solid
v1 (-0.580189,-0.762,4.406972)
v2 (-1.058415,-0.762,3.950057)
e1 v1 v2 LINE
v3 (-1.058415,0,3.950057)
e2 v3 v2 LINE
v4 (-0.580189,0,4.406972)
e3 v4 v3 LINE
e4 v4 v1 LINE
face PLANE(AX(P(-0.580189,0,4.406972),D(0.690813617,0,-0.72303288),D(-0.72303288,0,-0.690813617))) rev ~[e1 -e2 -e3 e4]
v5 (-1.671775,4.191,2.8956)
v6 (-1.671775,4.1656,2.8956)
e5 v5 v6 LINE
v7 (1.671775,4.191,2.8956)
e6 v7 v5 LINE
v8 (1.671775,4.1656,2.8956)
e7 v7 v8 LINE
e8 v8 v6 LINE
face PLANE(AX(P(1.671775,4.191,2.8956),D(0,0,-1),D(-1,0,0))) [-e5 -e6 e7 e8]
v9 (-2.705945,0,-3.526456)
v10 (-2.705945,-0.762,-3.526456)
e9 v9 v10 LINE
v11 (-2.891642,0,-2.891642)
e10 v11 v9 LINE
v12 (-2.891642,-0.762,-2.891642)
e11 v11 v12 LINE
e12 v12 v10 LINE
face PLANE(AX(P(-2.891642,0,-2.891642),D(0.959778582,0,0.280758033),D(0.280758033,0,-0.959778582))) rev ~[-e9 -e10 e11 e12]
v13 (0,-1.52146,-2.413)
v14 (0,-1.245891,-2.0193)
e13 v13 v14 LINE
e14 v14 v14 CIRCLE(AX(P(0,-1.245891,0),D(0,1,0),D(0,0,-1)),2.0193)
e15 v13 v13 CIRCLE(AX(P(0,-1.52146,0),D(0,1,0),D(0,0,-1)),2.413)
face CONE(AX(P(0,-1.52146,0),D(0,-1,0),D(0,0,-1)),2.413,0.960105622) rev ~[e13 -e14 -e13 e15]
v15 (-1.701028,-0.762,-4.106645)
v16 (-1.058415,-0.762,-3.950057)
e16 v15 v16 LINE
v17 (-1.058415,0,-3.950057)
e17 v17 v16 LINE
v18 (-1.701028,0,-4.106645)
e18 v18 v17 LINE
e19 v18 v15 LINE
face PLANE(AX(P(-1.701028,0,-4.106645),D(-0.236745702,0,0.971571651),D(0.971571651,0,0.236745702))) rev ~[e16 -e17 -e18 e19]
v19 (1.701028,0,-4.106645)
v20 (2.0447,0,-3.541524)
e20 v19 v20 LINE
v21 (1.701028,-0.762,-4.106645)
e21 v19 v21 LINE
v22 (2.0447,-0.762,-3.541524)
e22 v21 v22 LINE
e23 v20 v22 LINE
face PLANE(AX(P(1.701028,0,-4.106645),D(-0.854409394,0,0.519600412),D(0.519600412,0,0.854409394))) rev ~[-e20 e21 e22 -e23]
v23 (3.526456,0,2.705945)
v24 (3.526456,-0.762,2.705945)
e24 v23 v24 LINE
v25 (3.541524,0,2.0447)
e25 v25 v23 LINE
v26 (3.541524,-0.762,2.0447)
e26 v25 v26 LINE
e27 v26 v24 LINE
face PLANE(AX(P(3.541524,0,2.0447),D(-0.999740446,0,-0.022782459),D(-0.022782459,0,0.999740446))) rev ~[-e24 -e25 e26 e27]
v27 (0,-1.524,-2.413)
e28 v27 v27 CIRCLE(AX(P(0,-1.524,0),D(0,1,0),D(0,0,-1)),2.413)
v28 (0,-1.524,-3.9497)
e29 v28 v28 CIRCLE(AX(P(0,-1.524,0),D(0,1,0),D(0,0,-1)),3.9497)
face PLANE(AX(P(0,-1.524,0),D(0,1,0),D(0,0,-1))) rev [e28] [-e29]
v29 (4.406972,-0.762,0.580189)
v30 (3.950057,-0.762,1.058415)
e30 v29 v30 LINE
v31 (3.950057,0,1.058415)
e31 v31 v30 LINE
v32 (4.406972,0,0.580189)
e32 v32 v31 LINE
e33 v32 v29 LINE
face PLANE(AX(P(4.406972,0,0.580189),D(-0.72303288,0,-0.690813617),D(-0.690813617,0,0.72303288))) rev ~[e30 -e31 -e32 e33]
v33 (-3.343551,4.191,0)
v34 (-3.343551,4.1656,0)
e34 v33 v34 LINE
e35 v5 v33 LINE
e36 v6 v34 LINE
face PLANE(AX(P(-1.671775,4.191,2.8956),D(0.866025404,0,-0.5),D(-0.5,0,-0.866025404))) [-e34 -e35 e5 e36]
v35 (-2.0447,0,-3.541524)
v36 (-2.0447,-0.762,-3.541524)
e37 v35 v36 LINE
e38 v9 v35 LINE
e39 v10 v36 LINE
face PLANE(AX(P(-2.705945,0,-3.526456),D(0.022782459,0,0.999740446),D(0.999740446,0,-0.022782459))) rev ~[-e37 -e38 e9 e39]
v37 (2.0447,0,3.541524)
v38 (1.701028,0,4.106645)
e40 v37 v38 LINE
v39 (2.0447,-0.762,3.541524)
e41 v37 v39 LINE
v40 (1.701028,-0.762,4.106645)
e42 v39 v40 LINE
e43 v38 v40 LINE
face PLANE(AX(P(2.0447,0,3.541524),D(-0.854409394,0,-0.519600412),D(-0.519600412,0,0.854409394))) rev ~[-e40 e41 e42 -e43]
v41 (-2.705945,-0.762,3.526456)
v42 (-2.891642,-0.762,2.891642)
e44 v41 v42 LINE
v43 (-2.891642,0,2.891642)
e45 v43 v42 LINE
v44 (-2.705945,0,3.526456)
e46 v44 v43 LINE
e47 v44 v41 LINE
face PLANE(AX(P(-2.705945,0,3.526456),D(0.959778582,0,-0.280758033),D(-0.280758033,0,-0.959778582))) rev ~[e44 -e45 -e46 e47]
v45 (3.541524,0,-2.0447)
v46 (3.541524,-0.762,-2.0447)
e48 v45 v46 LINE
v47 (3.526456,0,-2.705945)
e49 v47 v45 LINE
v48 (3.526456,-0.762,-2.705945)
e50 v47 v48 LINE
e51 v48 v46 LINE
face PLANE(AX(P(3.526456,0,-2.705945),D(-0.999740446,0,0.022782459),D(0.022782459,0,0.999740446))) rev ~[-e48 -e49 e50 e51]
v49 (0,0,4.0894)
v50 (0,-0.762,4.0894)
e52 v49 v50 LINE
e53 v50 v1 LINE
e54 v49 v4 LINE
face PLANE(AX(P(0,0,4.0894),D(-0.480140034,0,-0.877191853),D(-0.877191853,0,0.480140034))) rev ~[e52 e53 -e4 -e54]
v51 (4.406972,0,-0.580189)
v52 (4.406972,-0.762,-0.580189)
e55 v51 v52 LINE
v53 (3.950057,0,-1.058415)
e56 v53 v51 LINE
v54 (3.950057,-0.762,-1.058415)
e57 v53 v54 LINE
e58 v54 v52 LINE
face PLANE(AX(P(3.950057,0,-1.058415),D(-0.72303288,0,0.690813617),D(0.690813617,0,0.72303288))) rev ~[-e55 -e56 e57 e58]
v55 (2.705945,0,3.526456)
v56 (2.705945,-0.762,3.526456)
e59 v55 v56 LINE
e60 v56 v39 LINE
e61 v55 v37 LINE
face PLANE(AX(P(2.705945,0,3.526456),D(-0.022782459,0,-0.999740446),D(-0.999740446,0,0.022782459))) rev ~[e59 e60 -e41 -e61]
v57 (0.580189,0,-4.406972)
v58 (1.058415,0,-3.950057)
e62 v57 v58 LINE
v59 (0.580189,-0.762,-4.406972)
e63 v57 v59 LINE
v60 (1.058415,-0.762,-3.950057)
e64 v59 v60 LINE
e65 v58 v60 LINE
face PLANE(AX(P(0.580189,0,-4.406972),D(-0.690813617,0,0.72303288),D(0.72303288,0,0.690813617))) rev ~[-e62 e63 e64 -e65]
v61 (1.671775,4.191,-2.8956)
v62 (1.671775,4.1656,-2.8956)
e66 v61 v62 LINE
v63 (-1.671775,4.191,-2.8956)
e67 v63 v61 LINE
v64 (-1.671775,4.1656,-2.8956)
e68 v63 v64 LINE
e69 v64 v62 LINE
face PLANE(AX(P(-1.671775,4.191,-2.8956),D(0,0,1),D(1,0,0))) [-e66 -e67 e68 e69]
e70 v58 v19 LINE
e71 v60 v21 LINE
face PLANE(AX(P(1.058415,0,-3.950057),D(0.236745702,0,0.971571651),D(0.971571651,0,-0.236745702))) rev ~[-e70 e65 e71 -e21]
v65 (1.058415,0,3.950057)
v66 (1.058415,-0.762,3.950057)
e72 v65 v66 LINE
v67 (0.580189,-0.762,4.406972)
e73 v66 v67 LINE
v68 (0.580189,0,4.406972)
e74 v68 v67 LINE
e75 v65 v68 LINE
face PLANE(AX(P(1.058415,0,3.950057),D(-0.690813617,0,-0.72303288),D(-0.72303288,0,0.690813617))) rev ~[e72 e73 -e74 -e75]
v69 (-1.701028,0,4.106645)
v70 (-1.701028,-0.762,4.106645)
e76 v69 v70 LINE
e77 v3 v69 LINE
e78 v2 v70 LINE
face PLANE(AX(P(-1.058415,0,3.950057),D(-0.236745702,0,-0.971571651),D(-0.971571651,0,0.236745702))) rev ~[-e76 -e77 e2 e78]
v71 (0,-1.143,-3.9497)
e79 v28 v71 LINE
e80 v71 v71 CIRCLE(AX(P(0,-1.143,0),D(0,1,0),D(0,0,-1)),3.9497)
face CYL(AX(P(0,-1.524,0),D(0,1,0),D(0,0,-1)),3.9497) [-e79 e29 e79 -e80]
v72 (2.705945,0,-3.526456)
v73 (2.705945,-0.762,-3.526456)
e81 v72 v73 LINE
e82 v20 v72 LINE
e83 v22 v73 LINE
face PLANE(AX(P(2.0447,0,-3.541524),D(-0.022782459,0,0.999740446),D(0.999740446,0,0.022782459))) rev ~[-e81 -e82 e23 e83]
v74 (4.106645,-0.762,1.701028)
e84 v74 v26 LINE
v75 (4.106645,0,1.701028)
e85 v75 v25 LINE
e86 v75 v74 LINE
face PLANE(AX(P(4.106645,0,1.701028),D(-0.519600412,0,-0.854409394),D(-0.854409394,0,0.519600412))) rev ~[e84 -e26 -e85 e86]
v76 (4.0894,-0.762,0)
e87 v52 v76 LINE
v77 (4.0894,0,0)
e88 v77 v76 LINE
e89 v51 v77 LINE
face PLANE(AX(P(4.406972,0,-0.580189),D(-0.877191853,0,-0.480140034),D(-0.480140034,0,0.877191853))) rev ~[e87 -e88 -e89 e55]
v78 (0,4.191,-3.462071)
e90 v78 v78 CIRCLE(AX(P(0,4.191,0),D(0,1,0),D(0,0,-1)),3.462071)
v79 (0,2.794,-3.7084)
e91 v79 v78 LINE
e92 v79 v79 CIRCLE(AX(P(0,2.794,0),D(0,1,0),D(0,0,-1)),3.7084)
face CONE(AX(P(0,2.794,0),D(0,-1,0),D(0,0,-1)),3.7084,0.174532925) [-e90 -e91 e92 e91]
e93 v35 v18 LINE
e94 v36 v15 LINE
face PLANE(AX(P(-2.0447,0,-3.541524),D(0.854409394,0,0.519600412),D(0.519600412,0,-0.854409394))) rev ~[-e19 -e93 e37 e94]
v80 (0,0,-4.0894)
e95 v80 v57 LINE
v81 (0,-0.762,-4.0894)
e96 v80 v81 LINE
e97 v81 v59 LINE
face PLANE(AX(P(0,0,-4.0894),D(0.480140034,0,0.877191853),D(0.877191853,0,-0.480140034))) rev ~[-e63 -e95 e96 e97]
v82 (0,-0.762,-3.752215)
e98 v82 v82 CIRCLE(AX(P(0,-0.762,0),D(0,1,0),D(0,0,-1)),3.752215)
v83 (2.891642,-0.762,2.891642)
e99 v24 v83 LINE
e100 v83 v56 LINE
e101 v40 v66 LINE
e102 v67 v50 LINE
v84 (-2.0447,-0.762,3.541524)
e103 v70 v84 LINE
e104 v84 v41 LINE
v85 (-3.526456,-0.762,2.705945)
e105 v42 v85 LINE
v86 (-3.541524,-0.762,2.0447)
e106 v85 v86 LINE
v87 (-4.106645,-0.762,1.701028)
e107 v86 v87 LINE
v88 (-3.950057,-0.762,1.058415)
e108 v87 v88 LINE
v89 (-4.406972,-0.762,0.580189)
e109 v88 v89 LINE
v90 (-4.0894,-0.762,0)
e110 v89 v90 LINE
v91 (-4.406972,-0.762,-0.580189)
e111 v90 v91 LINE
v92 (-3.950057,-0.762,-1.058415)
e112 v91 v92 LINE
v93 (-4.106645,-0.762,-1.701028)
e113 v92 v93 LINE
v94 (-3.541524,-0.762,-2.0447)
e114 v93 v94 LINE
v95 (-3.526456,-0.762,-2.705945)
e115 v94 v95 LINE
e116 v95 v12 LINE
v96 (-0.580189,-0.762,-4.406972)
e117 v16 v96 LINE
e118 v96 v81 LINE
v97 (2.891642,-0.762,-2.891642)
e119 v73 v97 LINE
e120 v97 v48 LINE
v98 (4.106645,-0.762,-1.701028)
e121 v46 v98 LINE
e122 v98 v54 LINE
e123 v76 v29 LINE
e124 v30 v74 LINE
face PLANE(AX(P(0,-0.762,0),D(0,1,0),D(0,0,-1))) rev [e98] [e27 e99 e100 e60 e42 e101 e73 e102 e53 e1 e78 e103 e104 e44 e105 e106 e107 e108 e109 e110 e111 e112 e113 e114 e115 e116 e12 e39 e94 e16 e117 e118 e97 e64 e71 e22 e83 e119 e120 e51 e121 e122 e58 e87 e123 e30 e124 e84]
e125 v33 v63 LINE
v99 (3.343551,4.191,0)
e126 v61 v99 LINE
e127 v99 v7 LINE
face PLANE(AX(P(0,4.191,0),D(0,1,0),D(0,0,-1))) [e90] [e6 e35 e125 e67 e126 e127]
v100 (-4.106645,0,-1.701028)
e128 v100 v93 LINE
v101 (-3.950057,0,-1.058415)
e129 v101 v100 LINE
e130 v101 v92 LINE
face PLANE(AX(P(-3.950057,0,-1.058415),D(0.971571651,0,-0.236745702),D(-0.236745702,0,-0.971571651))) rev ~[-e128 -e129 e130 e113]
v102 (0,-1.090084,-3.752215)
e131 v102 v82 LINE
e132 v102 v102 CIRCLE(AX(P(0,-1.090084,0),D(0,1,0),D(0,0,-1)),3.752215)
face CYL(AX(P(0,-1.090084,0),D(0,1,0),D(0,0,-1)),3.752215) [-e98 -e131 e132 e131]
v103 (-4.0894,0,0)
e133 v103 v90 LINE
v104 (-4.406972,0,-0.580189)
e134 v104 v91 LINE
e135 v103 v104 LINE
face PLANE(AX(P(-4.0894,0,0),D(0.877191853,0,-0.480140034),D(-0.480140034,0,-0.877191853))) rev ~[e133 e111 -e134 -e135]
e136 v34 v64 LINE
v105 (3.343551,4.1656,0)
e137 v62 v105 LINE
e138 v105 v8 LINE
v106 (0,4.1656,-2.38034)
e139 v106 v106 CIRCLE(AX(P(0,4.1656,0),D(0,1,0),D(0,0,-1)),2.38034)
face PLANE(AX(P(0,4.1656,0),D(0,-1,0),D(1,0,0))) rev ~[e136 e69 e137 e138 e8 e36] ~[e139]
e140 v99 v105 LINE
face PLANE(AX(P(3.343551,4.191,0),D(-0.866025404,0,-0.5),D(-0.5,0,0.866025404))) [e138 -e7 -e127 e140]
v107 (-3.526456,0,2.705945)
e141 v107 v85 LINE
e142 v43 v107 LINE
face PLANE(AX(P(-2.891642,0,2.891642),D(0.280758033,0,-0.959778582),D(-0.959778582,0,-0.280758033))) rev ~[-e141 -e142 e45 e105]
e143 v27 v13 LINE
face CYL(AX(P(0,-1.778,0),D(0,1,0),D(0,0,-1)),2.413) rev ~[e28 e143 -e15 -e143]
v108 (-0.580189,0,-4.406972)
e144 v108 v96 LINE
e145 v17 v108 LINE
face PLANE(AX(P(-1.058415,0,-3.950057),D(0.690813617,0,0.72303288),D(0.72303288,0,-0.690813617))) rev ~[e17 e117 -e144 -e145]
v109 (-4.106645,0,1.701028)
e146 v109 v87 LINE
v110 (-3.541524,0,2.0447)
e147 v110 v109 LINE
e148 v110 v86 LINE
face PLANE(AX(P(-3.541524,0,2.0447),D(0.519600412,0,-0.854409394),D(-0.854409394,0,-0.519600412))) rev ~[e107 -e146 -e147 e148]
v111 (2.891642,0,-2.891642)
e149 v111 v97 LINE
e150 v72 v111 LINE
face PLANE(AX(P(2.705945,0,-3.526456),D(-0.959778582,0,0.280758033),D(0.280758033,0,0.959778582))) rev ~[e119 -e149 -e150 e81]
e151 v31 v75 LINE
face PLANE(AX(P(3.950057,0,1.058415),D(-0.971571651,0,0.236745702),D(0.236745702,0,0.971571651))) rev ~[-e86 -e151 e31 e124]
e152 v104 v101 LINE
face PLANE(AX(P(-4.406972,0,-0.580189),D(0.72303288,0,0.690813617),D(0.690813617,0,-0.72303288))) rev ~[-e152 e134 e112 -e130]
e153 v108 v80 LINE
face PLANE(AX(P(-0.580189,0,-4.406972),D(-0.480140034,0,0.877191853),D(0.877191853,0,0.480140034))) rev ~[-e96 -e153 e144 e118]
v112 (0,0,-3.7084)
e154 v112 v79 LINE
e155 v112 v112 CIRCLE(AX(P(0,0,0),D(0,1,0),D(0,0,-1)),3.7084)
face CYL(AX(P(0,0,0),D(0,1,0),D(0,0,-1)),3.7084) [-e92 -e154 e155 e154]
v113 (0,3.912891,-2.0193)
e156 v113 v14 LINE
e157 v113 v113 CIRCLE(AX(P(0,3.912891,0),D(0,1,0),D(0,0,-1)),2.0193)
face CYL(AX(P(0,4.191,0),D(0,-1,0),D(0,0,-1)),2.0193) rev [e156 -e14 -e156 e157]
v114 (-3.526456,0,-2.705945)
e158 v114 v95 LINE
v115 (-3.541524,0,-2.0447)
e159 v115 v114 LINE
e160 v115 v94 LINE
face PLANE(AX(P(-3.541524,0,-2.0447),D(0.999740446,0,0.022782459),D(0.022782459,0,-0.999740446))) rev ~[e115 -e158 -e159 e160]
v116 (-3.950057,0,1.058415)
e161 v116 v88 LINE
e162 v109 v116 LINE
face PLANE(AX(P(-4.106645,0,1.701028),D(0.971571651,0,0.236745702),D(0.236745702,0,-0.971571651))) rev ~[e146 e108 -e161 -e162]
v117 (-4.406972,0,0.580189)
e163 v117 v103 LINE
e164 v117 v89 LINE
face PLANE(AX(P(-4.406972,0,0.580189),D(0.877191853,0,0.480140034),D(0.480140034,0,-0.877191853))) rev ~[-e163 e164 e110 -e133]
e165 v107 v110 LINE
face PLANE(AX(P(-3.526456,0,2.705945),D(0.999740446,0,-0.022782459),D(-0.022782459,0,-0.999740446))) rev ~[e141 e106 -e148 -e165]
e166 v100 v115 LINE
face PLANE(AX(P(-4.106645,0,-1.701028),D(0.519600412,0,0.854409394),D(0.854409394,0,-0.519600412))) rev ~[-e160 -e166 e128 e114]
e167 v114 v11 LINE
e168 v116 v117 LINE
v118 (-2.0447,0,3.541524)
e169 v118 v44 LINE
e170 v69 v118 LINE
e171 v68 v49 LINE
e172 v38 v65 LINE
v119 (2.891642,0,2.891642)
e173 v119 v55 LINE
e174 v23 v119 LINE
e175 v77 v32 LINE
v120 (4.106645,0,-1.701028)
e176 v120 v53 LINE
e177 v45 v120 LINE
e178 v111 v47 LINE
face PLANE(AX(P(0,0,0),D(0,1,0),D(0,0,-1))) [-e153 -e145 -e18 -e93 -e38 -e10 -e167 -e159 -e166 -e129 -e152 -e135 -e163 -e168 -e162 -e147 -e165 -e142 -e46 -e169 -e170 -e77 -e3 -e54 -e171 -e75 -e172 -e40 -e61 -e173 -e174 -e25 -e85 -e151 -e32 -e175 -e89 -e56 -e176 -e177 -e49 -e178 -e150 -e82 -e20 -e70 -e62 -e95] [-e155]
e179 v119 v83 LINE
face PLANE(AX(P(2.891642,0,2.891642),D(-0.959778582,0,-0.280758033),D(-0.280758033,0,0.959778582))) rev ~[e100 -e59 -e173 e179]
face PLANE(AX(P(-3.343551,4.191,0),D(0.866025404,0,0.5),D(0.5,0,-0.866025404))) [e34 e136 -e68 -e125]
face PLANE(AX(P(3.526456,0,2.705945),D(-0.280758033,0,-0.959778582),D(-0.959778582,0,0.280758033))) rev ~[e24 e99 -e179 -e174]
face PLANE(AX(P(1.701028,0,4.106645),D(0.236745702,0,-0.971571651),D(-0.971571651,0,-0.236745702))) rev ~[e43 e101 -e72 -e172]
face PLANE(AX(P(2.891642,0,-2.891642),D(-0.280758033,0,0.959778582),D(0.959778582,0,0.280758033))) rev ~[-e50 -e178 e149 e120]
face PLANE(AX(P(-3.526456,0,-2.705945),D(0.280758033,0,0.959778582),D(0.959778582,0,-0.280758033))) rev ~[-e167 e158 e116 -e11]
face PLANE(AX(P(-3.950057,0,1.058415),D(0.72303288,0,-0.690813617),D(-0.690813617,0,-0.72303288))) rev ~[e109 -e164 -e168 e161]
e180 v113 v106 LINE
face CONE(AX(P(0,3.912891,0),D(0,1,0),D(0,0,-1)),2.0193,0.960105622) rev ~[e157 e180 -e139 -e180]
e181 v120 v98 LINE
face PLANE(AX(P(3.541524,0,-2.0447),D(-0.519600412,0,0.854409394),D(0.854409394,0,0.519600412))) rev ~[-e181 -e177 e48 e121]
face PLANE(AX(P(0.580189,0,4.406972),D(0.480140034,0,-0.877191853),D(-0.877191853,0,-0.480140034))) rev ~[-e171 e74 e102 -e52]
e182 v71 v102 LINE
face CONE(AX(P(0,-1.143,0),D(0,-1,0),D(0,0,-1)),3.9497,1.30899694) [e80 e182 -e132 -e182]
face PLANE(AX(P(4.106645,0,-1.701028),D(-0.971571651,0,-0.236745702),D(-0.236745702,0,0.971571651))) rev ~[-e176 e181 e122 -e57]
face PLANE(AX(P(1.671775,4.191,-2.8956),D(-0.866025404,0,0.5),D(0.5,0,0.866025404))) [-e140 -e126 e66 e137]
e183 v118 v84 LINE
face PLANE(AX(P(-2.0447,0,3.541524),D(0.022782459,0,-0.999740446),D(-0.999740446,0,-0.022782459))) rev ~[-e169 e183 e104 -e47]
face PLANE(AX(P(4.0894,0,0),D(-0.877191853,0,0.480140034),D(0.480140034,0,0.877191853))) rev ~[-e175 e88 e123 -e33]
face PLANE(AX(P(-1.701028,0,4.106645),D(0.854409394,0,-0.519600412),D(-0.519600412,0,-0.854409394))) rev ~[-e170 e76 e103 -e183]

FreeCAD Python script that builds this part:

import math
import FreeCAD as App
import Part
import Sketcher
Q = App.Units.Quantity


def add_polygon(sketch, points):
    """Adds a closed chain of lines whose ends are joined by coincident constraints."""
    first, n = sketch.GeometryCount, len(points)
    for a, b in zip(points, points[1:] + points[:1]):
        sketch.addGeometry(Part.LineSegment(App.Vector(*a, 0), App.Vector(*b, 0)), False)
    for i in range(n):
        sketch.addConstraint(Sketcher.Constraint("Coincident", first + i, 2, first + (i + 1) % n, 1))

doc = App.newDocument("Part")
body = doc.addObject("PartDesign::Body", "Body")

# Sketch on XY plane
sketch1 = body.newObject("Sketcher::SketchObject", "Sketch")
sketch1.AttachmentSupport = (doc.getObject("XY_Plane"), [""])
sketch1.MapMode = "FlatFace"
add_polygon(sketch1, [(3.75, -1.09), (3.75, -0.76), (4.45, -0.76), (4.45, 0), (3.71, 0), (3.71, 2.79), (3.46, 4.19), (2.02, 4.19), (2.02, -1.52), (3.95, -1.52), (3.95, -1.14)])  # lines 0-10
sketch1.addConstraint([
    Sketcher.Constraint("Vertical", 0),
    Sketcher.Constraint("Horizontal", 1),
    Sketcher.Constraint("Vertical", 2),
    Sketcher.Constraint("Horizontal", 3),
    Sketcher.Constraint("Vertical", 4),
    Sketcher.Constraint("Horizontal", 6),
    Sketcher.Constraint("Vertical", 7),
    Sketcher.Constraint("Horizontal", 8),
    Sketcher.Constraint("Vertical", 9),
    Sketcher.Constraint("PointOnObject", 2, 2, -1),
    Sketcher.Constraint("Angle", 5, Q("100 deg")),
    Sketcher.Constraint("Angle", 10, Q("165 deg")),
    Sketcher.Constraint("DistanceY", 2, 1, 2, 2, Q("0.03 in")),
    Sketcher.Constraint("DistanceY", 4, 1, 4, 2, Q("0.11 in")),
    Sketcher.Constraint("DistanceX", 3, 2, 3, 1, Q("0.029 in")),
    Sketcher.Constraint("DistanceX", 8, 1, 8, 2, Q("0.076 in")),
    Sketcher.Constraint("DistanceY", 7, 2, 7, 1, Q("0.225 in")),
    Sketcher.Constraint("DistanceY", 9, 1, 9, 2, Q("0.015 in")),
    Sketcher.Constraint("DistanceY", 7, 2, -1, 1, Q("0.06 in")),
    Sketcher.Constraint("DistanceX", -1, 1, 1, 2, Q("0.175 in")),
    Sketcher.Constraint("DistanceX", -1, 1, 6, 2, Q("0.0795 in")),
    Sketcher.Constraint("Distance", 10, 0.204452),
])
revolution = body.newObject("PartDesign::Revolution", "Revolution")
revolution.Profile = sketch1
revolution.ReferenceAxis = (sketch1, ["V_Axis"])
revolution.Angle = 360

# Sketch on XY plane
sketch2 = body.newObject("Sketcher::SketchObject", "Sketch001")
sketch2.AttachmentSupport = (doc.getObject("XY_Plane"), [""])
sketch2.MapMode = "FlatFace"
add_polygon(sketch2, [(2.41, -1.78), (2.41, -1.52), (2.02, -1.25), (2.02, -1.78)])  # lines 0-3
add_polygon(sketch2, [(2.41, 4.19), (2.41, 4.45), (2.02, 4.45), (2.02, 3.91)])  # lines 4-7
sketch2.addConstraint([
    Sketcher.Constraint("Vertical", 0),
    Sketcher.Constraint("Vertical", 2),
    Sketcher.Constraint("Horizontal", 3),
    Sketcher.Constraint("Vertical", 4),
    Sketcher.Constraint("Horizontal", 5),
    Sketcher.Constraint("Vertical", 6),
    Sketcher.Constraint("Vertical", 3, 2, 4, 2),
    Sketcher.Constraint("Vertical", 2, 2, 5, 2),
    Sketcher.Constraint("Equal", 0, 4),
    Sketcher.Constraint("Equal", 2, 6),
    Sketcher.Constraint("DistanceY", 2, 2, -1, 1, Q("0.07 in")),
    Sketcher.Constraint("Angle", 1, Q("145.01 deg")),
    Sketcher.Constraint("DistanceX", 3, 1, 3, 2, Q("0.0155 in")),
    Sketcher.Constraint("DistanceY", 0, 1, 0, 2, Q("0.0101 in")),
    Sketcher.Constraint("DistanceX", -1, 1, 0, 2, Q("0.095 in")),
    Sketcher.Constraint("DistanceY", -1, 1, 4, 2, Q("0.175 in")),
])
groove = body.newObject("PartDesign::Groove", "Groove")
groove.Profile = sketch2
groove.ReferenceAxis = (sketch2, ["V_Axis"])
groove.Angle = 360

# Sketch on XZ plane
sketch3 = body.newObject("Sketcher::SketchObject", "Sketch002")
sketch3.AttachmentSupport = (doc.getObject("XZ_Plane"), [""])
sketch3.MapMode = "FlatFace"
sketch3.addGeometry([
    Part.LineSegment(App.Vector(0, 4.1, 0), App.Vector(0.6, 4.4, 0)),
    Part.ArcOfCircle(Part.Circle(App.Vector(0, 0, 0), App.Vector(0, 0, 1), 4.4), math.radians(82.5), math.radians(97.5)),
    Part.LineSegment(App.Vector(-0.6, 4.4, 0), App.Vector(0, 4.1, 0)),
], False)
sketch3.addConstraint([
    Sketcher.Constraint("Coincident", 0, 2, 1, 1),
    Sketcher.Constraint("Coincident", 1, 2, 2, 1),
    Sketcher.Constraint("Coincident", 2, 2, 0, 1),
    Sketcher.Constraint("Coincident", 1, 3, -1, 1),
    Sketcher.Constraint("PointOnObject", 2, 2, -2),
    Sketcher.Constraint("Horizontal", 0, 2, 1, 2),
    Sketcher.Constraint("Radius", 1, Q("0.175 in")),
    Sketcher.Constraint("DistanceY", -1, 1, 2, 2, Q("0.161 in")),
    Sketcher.Constraint("DistanceX", -1, 1, 0, 2, 0.580189),
])
pocket1 = body.newObject("PartDesign::Pocket", "Pocket")
pocket1.Profile = sketch3
pocket1.Length = Q("0.03 in")
pocket1.Reversed = True
doc.recompute()

polarpattern = body.newObject("PartDesign::PolarPattern", "PolarPattern")
polarpattern.Originals = [pocket1]
polarpattern.Axis = (doc.getObject("Y_Axis"), [""])
polarpattern.Angle = 360
polarpattern.Occurrences = 24
body.Tip = polarpattern

# Sketch on XZ plane
sketch4 = body.newObject("Sketcher::SketchObject", "Sketch003")
sketch4.AttachmentSupport = (doc.getObject("XZ_Plane"), [""])
sketch4.MapMode = "FlatFace"
sketch4.AttachmentOffset = App.Placement(App.Vector(0, 0, -0.165 * 25.4), App.Rotation())
add_polygon(sketch4, [(-1.7, 2.9), (1.7, 2.9), (3.3, 0), (1.7, -2.9), (-1.7, -2.9), (-3.3, 0)])  # lines 0-5
sketch4.addConstraint([
    Sketcher.Constraint("Horizontal", 0),
    Sketcher.Constraint("Horizontal", 3),
    Sketcher.Constraint("Symmetric", 0, 2, 3, 2, -1, 1),
    Sketcher.Constraint("Symmetric", 1, 2, 4, 2, -1, 1),
    Sketcher.Constraint("PointOnObject", 1, 2, -1),
    Sketcher.Constraint("Parallel", 2, 5),
    Sketcher.Constraint("Vertical", 0, 2, 2, 2),
    Sketcher.Constraint("Angle", 1, Q("-60 deg")),
    Sketcher.Constraint("DistanceY", -1, 1, 0, 2, Q("0.114 in")),
    Sketcher.Constraint("DistanceX", 0, 1, 0, 2, 3.343551),
])
pocket2 = body.newObject("PartDesign::Pocket", "Pocket001")
pocket2.Profile = sketch4
pocket2.Length = Q("0.001 in")
pocket2.Reversed = True

doc.recompute()
